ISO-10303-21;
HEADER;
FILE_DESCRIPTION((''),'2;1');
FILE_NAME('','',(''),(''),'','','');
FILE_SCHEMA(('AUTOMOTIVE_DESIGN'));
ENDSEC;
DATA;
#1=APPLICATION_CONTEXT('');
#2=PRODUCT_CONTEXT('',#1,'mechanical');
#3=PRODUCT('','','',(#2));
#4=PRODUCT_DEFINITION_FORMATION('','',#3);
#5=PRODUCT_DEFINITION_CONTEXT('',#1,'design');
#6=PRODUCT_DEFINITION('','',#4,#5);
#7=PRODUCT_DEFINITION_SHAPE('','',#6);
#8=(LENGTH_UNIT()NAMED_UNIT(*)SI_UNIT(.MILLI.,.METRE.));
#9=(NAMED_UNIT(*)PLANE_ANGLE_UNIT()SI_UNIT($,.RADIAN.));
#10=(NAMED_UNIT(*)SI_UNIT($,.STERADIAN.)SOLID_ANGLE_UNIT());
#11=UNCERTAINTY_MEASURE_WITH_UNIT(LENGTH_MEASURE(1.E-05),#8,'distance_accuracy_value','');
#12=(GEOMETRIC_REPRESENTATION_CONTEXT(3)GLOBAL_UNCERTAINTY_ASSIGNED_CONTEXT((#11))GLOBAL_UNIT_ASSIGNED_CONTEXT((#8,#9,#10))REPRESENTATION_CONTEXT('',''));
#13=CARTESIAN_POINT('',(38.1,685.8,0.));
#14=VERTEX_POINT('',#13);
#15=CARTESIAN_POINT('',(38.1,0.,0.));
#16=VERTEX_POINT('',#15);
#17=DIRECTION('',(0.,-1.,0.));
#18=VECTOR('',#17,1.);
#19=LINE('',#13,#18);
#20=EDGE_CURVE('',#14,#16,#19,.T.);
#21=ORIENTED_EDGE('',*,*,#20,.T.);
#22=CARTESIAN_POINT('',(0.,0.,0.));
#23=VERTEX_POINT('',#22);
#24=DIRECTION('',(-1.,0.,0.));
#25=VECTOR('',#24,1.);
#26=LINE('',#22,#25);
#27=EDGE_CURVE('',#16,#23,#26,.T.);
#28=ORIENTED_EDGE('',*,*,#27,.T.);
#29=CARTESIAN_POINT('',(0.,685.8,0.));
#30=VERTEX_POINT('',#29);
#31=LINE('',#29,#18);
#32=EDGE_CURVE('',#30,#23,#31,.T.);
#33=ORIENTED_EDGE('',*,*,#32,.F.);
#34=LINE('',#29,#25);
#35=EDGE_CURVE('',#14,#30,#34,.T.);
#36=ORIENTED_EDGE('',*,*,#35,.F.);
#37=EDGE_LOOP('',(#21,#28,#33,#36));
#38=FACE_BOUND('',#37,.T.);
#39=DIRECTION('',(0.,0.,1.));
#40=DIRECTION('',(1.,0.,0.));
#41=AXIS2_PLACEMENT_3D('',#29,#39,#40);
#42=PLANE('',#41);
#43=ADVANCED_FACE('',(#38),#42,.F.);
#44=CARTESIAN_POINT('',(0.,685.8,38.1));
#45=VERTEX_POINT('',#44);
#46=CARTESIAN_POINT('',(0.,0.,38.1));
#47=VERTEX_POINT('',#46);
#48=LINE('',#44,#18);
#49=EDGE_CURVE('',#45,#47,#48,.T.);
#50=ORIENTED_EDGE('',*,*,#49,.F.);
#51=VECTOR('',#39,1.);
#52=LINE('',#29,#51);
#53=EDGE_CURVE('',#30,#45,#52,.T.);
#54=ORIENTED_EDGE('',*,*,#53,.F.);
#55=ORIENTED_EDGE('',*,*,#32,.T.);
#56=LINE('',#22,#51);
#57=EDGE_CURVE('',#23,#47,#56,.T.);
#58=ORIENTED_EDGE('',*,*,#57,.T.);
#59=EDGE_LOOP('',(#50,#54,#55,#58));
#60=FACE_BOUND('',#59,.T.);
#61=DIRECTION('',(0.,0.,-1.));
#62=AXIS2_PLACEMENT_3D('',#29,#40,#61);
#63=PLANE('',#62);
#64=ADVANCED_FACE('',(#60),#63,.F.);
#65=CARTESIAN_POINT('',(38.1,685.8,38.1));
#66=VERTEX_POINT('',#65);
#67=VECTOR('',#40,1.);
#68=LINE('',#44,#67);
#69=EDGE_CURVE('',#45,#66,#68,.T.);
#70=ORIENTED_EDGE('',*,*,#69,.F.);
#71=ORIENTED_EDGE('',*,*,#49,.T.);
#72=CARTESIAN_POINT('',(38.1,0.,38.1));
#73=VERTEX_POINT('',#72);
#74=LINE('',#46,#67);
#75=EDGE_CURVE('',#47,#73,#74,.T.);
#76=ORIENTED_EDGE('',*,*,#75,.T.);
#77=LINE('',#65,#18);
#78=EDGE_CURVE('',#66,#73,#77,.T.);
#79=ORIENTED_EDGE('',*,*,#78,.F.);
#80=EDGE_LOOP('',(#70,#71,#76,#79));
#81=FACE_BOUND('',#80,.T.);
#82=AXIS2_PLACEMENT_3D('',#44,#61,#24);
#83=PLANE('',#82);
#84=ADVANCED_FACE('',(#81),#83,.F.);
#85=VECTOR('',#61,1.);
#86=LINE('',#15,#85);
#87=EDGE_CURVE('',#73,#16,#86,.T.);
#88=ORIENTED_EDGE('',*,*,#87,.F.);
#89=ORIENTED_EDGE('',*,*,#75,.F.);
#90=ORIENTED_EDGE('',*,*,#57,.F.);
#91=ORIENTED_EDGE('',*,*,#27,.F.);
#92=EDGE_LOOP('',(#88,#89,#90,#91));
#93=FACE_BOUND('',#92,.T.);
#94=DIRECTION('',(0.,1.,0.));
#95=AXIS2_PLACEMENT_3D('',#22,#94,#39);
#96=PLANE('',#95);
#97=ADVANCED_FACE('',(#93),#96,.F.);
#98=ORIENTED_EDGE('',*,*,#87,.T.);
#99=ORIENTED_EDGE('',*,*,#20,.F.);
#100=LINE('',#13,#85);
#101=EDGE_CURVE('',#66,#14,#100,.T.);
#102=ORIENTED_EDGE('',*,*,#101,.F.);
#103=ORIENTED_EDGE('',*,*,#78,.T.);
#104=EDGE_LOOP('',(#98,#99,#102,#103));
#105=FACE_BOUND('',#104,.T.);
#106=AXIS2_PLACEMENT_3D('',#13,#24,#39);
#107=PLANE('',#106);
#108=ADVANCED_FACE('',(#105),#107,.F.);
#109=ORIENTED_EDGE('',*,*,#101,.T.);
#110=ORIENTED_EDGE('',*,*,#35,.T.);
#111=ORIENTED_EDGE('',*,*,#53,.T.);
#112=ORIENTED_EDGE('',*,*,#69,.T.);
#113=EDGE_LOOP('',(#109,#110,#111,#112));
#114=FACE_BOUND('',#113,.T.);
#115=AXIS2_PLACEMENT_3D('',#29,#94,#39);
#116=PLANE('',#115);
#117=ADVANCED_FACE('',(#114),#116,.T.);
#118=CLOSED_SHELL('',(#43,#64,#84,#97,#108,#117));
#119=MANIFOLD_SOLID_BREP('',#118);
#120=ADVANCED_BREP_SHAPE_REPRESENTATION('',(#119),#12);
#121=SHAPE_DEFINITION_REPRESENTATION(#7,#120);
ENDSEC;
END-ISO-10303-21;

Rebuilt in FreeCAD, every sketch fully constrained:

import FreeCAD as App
import Part
import Sketcher
from FreeCAD import Vector
Q = App.Units.Quantity


def add_polygon(sketch, points):
    """Adds a closed chain of lines whose ends are joined by coincident constraints."""
    first, n = sketch.GeometryCount, len(points)
    for a, b in zip(points, points[1:] + points[:1]):
        sketch.addGeometry(Part.LineSegment(App.Vector(*a, 0), App.Vector(*b, 0)), False)
    for i in range(n):
        sketch.addConstraint(Sketcher.Constraint("Coincident", first + i, 2, first + (i + 1) % n, 1))

doc = App.newDocument("Part")
body = doc.addObject("PartDesign::Body", "Body")

# Sketch on XZ plane
sketch1 = doc.addObject("Sketcher::SketchObject", "Sketch")
body.addObject(sketch1)
sketch1.AttachmentSupport = (doc.XZ_Plane, [""])
sketch1.MapMode = "FlatFace"
add_polygon(sketch1, [(0, 0), (0, 38), (38, 38), (38, 0)])  # lines 0-3
sketch1.addConstraint([
    Sketcher.Constraint("Vertical", 0),
    Sketcher.Constraint("Horizontal", 1),
    Sketcher.Constraint("Vertical", 2),
    Sketcher.Constraint("Horizontal", 3),
    Sketcher.Constraint("Coincident", 3, 2, -1, 1),
    Sketcher.Constraint("Equal", 3, 0),
    Sketcher.Constraint("DistanceX", 1, 1, 1, 2, Q("1.5 in")),
])
pad1 = doc.addObject("PartDesign::Pad", "Pad")
body.addObject(pad1)
pad1.Profile = sketch1
pad1.Length = Q("27 in")
pad1.Reversed = True

doc.recompute()
